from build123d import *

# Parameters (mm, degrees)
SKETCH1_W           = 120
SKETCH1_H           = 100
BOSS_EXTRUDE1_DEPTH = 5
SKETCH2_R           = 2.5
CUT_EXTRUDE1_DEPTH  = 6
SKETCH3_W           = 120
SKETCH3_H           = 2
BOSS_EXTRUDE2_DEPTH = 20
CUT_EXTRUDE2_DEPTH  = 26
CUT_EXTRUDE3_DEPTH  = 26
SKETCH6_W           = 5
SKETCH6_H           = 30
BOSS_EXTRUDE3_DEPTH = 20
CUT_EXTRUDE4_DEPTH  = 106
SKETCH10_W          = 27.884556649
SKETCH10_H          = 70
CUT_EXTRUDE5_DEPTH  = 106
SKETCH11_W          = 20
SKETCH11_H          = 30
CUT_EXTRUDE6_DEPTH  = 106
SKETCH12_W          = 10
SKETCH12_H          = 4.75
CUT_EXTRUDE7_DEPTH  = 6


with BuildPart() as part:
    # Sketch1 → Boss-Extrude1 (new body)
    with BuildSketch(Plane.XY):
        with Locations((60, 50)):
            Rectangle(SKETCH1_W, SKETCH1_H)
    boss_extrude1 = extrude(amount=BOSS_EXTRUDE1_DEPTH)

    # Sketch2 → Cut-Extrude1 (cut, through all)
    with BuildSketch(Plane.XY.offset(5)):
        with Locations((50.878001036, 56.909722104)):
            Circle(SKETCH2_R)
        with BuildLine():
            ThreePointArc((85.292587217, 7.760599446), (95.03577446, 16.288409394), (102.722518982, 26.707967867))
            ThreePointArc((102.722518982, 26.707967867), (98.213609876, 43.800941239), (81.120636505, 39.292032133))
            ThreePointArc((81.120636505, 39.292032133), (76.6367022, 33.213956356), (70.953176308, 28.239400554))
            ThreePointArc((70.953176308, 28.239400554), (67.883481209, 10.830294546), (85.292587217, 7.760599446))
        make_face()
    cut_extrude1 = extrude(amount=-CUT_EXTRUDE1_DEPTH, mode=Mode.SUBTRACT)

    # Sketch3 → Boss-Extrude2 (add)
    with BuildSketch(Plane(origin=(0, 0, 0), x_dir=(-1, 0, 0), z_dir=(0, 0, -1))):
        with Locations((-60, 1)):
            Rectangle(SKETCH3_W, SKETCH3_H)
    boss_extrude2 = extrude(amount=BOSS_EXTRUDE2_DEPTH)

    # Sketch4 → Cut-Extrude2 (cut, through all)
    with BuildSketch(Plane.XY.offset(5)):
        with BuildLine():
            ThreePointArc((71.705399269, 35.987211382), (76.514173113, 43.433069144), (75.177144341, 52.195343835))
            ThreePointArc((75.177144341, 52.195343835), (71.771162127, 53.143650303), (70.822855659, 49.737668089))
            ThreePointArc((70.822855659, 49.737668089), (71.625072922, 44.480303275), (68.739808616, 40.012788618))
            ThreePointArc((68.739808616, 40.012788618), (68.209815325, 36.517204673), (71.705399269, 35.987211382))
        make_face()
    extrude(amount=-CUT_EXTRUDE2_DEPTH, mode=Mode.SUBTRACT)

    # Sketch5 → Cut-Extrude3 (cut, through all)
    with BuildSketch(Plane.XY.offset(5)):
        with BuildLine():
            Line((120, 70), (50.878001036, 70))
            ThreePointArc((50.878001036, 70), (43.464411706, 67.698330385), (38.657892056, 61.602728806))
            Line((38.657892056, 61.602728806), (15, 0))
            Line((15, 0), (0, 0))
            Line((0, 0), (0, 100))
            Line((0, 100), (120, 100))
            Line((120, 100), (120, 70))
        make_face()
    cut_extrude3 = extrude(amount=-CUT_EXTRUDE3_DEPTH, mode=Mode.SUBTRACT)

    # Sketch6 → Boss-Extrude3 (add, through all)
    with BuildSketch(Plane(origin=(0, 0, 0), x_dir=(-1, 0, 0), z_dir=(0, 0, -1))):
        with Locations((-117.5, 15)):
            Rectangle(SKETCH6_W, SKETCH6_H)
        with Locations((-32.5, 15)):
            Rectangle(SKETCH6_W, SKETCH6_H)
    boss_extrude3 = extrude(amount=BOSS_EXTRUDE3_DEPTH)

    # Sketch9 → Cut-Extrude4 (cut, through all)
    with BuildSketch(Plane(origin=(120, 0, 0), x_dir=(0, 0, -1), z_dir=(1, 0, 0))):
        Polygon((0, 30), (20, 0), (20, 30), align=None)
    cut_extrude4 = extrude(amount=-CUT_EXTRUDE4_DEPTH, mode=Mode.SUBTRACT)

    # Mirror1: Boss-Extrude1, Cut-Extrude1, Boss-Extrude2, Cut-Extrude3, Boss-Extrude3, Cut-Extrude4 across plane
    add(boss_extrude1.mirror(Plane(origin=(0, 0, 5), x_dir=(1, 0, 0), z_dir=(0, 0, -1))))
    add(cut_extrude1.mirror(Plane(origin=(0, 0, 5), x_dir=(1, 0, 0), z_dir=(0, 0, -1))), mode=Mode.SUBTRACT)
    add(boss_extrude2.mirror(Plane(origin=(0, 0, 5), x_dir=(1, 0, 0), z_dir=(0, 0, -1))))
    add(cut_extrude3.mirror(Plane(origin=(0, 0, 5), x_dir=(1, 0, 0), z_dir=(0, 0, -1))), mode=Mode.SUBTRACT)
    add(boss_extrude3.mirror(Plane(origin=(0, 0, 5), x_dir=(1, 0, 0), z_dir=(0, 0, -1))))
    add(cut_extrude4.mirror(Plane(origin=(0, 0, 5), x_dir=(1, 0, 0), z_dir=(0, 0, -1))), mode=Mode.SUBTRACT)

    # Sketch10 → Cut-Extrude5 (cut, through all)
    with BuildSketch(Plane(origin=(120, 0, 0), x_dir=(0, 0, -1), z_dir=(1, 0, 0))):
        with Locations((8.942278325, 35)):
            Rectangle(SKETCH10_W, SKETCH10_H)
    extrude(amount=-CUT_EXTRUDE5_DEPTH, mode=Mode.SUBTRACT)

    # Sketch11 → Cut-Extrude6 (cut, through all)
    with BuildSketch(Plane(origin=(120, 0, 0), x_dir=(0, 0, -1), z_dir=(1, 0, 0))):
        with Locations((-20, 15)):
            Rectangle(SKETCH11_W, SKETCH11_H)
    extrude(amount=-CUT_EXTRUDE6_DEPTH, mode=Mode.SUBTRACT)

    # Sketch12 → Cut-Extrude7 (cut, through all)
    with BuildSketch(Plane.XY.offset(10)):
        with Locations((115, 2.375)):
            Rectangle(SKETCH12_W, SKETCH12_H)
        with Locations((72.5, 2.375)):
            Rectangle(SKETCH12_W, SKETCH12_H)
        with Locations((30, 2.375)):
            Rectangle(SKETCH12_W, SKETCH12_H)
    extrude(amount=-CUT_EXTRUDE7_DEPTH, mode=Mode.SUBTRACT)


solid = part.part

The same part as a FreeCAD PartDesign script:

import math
import FreeCAD as App
import Part
import Sketcher
from FreeCAD import Vector


def add_polygon(sketch, points):
    """Adds a closed chain of lines whose ends are joined by coincident constraints."""
    first, n = sketch.GeometryCount, len(points)
    for a, b in zip(points, points[1:] + points[:1]):
        sketch.addGeometry(Part.LineSegment(App.Vector(*a, 0), App.Vector(*b, 0)), False)
    for i in range(n):
        sketch.addConstraint(Sketcher.Constraint("Coincident", first + i, 2, first + (i + 1) % n, 1))

doc = App.newDocument("Part")
body = doc.addObject("PartDesign::Body", "Body")

# Sketch on XY plane
sketch1 = doc.addObject("Sketcher::SketchObject", "Sketch")
body.addObject(sketch1)
sketch1.AttachmentSupport = (doc.XY_Plane, [""])
sketch1.MapMode = "FlatFace"
add_polygon(sketch1, [(0, 100), (0, 0), (120, 0), (120, 100)])  # lines 0-3
sketch1.addConstraint([
    Sketcher.Constraint("Vertical", 0),
    Sketcher.Constraint("Horizontal", 1),
    Sketcher.Constraint("Vertical", 2),
    Sketcher.Constraint("Horizontal", 3),
    Sketcher.Constraint("Coincident", 0, 2, -1, 1),
    Sketcher.Constraint("DistanceX", 1, 1, 1, 2, 120.0),
    Sketcher.Constraint("DistanceY", 0, 2, 0, 1, 100.0),
])
pad1 = doc.addObject("PartDesign::Pad", "Pad")
body.addObject(pad1)
pad1.Profile = sketch1
pad1.Length = 5

# Sketch on XY plane
sketch2 = doc.addObject("Sketcher::SketchObject", "Sketch001")
body.addObject(sketch2)
sketch2.AttachmentSupport = (doc.XY_Plane, [""])
sketch2.MapMode = "FlatFace"
sketch2.AttachmentOffset = App.Placement(Vector(0, 0, 5), App.Rotation())
sketch2.addGeometry([
    Part.Circle(Vector(50.878001, 56.909722, 0), Vector(0, 0, 1), 2.5),  # 0
    Part.ArcOfCircle(Part.Circle(Vector(50.878001, 56.909722, 0), Vector(0, 0, 1), 60), math.radians(-55), math.radians(-30.222716)),  # 1
    Part.ArcOfCircle(Part.Circle(Vector(91.921578, 33, 0), Vector(0, 0, 1), 12.5), math.radians(-30.222716), math.radians(149.777284)),  # 2
    Part.ArcOfCircle(Part.Circle(Vector(50.878001, 56.909722, 0), Vector(0, 0, 1), 35), math.radians(-55), math.radians(-30.222716)),  # 3
    Part.ArcOfCircle(Part.Circle(Vector(78.122882, 18, 0), Vector(0, 0, 1), 12.5), math.radians(125), math.radians(305)),  # 4
], False)
sketch2.addConstraint([
    Sketcher.Constraint("Tangent", 1, 2, 2, 1),
    Sketcher.Constraint("Tangent", 2, 2, 3, 2),
    Sketcher.Constraint("Tangent", 3, 1, 4, 1),
    Sketcher.Constraint("Tangent", 4, 2, 1, 1),
    Sketcher.Constraint("Coincident", 1, 3, 0, 3),
    Sketcher.Constraint("Coincident", 3, 3, 0, 3),
    Sketcher.Constraint("Diameter", 0, 5.0),
    Sketcher.Constraint("Radius", 1, 60.0),
    Sketcher.Constraint("Radius", 3, 35.0),
    Sketcher.Constraint("DistanceY", -1, 1, 2, 3, 33.0),
    Sketcher.Constraint("DistanceY", -1, 1, 4, 3, 18.0),
    Sketcher.Constraint("DistanceX", -1, 1, 0, 3, 50.878001),
    Sketcher.Constraint("DistanceY", -1, 1, 3, 1, 28.239401),
])
pocket1 = doc.addObject("PartDesign::Pocket", "Pocket")
body.addObject(pocket1)
pocket1.Profile = sketch2
pocket1.Type = "ThroughAll"

# Sketch on XY plane
sketch3 = doc.addObject("Sketcher::SketchObject", "Sketch002")
body.addObject(sketch3)
sketch3.AttachmentSupport = (doc.XY_Plane, [""])
sketch3.MapMode = "FlatFace"
add_polygon(sketch3, [(120, 2), (120, 0), (0, 0), (0, 2)])  # lines 0-3
sketch3.addConstraint([
    Sketcher.Constraint("Vertical", 0),
    Sketcher.Constraint("Horizontal", 1),
    Sketcher.Constraint("Vertical", 2),
    Sketcher.Constraint("Horizontal", 3),
    Sketcher.Constraint("Coincident", 1, 2, -1, 1),
    Sketcher.Constraint("DistanceX", 1, 2, 1, 1, 120.0),
    Sketcher.Constraint("DistanceY", 0, 2, 0, 1, 2.0),
])
pad2 = doc.addObject("PartDesign::Pad", "Pad001")
body.addObject(pad2)
pad2.Profile = sketch3
pad2.Length = 20
pad2.Reversed = True

# Sketch on XY plane
sketch4 = doc.addObject("Sketcher::SketchObject", "Sketch003")
body.addObject(sketch4)
sketch4.AttachmentSupport = (doc.XY_Plane, [""])
sketch4.MapMode = "FlatFace"
sketch4.AttachmentOffset = App.Placement(Vector(0, 0, 5), App.Rotation())
sketch4.addGeometry([
    Part.ArcOfCircle(Part.Circle(Vector(64.291423, 46.051154, 0), Vector(0, 0, 1), 12.5), math.radians(-53.621406), math.radians(29.441533)),
    Part.ArcOfCircle(Part.Circle(Vector(73, 50.966506, 0), Vector(0, 0, 1), 2.5), math.radians(29.441533), math.radians(209.441533)),
    Part.ArcOfCircle(Part.Circle(Vector(64.291423, 46.051154, 0), Vector(0, 0, 1), 7.5), math.radians(-53.621406), math.radians(29.441533)),
    Part.ArcOfCircle(Part.Circle(Vector(70.222604, 38, 0), Vector(0, 0, 1), 2.5), math.radians(126.378594), math.radians(306.378594)),
], False)
sketch4.addConstraint([
    Sketcher.Constraint("Tangent", 0, 2, 1, 1),
    Sketcher.Constraint("Tangent", 1, 2, 2, 2),
    Sketcher.Constraint("Tangent", 2, 1, 3, 1),
    Sketcher.Constraint("Tangent", 3, 2, 0, 1),
    Sketcher.Constraint("Coincident", 2, 3, 0, 3),
    Sketcher.Constraint("Radius", 0, 12.5),
    Sketcher.Constraint("Radius", 1, 2.5),
    Sketcher.Constraint("DistanceX", -1, 1, 1, 3, 73.0),
    Sketcher.Constraint("DistanceY", -1, 1, 3, 3, 38.0),
    Sketcher.Constraint("DistanceX", -1, 1, 3, 2, 71.705399),
    Sketcher.Constraint("DistanceY", -1, 1, 1, 2, 49.737668),
])
pocket2 = doc.addObject("PartDesign::Pocket", "Pocket001")
body.addObject(pocket2)
pocket2.Profile = sketch4
pocket2.Type = "ThroughAll"

# Sketch on XY plane
sketch5 = doc.addObject("Sketcher::SketchObject", "Sketch004")
body.addObject(sketch5)
sketch5.AttachmentSupport = (doc.XY_Plane, [""])
sketch5.MapMode = "FlatFace"
sketch5.AttachmentOffset = App.Placement(Vector(0, 0, 5), App.Rotation())
sketch5.addGeometry([
    Part.LineSegment(Vector(50.878001, 70, 0), Vector(120, 70, 0)),  # 0
    Part.LineSegment(Vector(120, 70, 0), Vector(120, 100, 0)),  # 1
    Part.LineSegment(Vector(120, 100, 0), Vector(0, 100, 0)),  # 2
    Part.LineSegment(Vector(0, 100, 0), Vector(0, 0, 0)),  # 3
    Part.LineSegment(Vector(0, 0, 0), Vector(15, 0, 0)),  # 4
    Part.LineSegment(Vector(15, 0, 0), Vector(38.657892, 61.602729, 0)),  # 5
    Part.ArcOfCircle(Part.Circle(Vector(50.878001, 56.909722, 0), Vector(0, 0, 1), 13.090278), math.radians(90), math.radians(158.991229)),  # 6
], False)
sketch5.addConstraint([
    Sketcher.Constraint("Coincident", 0, 2, 1, 1),
    Sketcher.Constraint("Coincident", 1, 2, 2, 1),
    Sketcher.Constraint("Coincident", 2, 2, 3, 1),
    Sketcher.Constraint("Coincident", 3, 2, 4, 1),
    Sketcher.Constraint("Coincident", 4, 2, 5, 1),
    Sketcher.Constraint("Tangent", 5, 2, 6, 2),
    Sketcher.Constraint("Tangent", 6, 1, 0, 1),
    Sketcher.Constraint("Horizontal", 0),
    Sketcher.Constraint("Vertical", 1),
    Sketcher.Constraint("Horizontal", 2),
    Sketcher.Constraint("Vertical", 3),
    Sketcher.Constraint("Horizontal", 4),
    Sketcher.Constraint("Coincident", 3, 2, -1, 1),
    Sketcher.Constraint("DistanceX", 2, 2, 2, 1, 120.0),
    Sketcher.Constraint("DistanceX", 4, 1, 4, 2, 15.0),
    Sketcher.Constraint("DistanceY", 1, 1, 1, 2, 30.0),
    Sketcher.Constraint("DistanceY", 3, 2, 3, 1, 100.0),
    Sketcher.Constraint("DistanceX", 0, 1, 0, 2, 69.121999),
    Sketcher.Constraint("Radius", 6, 13.090278),
])
pocket3 = doc.addObject("PartDesign::Pocket", "Pocket002")
body.addObject(pocket3)
pocket3.Profile = sketch5
pocket3.Type = "ThroughAll"

# Sketch on XY plane
sketch6 = doc.addObject("Sketcher::SketchObject", "Sketch005")
body.addObject(sketch6)
sketch6.AttachmentSupport = (doc.XY_Plane, [""])
sketch6.MapMode = "FlatFace"
add_polygon(sketch6, [(120, 30), (120, 0), (115, 0), (115, 30)])  # lines 0-3
add_polygon(sketch6, [(35, 30), (35, 0), (30, 0), (30, 30)])  # lines 4-7
sketch6.addConstraint([
    Sketcher.Constraint("Vertical", 0),
    Sketcher.Constraint("Horizontal", 1),
    Sketcher.Constraint("Vertical", 2),
    Sketcher.Constraint("Horizontal", 3),
    Sketcher.Constraint("Vertical", 4),
    Sketcher.Constraint("Horizontal", 5),
    Sketcher.Constraint("Vertical", 6),
    Sketcher.Constraint("Horizontal", 7),
    Sketcher.Constraint("PointOnObject", 0, 2, -1),
    Sketcher.Constraint("PointOnObject", 4, 2, -1),
    Sketcher.Constraint("Horizontal", 3, 2, 6, 2),
    Sketcher.Constraint("Equal", 3, 5),
    Sketcher.Constraint("DistanceX", 1, 2, 1, 1, 5.0),
    Sketcher.Constraint("DistanceY", 0, 2, 0, 1, 30.0),
    Sketcher.Constraint("DistanceX", -1, 1, 0, 2, 120.0),
    Sketcher.Constraint("DistanceX", -1, 1, 4, 2, 35.0),
])
pad3 = doc.addObject("PartDesign::Pad", "Pad002")
body.addObject(pad3)
pad3.Profile = sketch6
pad3.Length = 20
pad3.Reversed = True

# Sketch on YZ plane
sketch7 = doc.addObject("Sketcher::SketchObject", "Sketch006")
body.addObject(sketch7)
sketch7.AttachmentSupport = (doc.YZ_Plane, [""])
sketch7.MapMode = "FlatFace"
sketch7.AttachmentOffset = App.Placement(Vector(0, 0, 120), App.Rotation())
add_polygon(sketch7, [(30, 0), (0, -20), (30, -20)])  # lines 0-2
sketch7.addConstraint([
    Sketcher.Constraint("Horizontal", 1),
    Sketcher.Constraint("Vertical", 2),
    Sketcher.Constraint("PointOnObject", 0, 2, -2),
    Sketcher.Constraint("PointOnObject", 2, 2, -1),
    Sketcher.Constraint("DistanceX", 1, 1, 1, 2, 30.0),
    Sketcher.Constraint("DistanceY", 2, 1, 2, 2, 20.0),
])
pocket4 = doc.addObject("PartDesign::Pocket", "Pocket003")
body.addObject(pocket4)
pocket4.Profile = sketch7
pocket4.Type = "ThroughAll"
doc.recompute()

datumplane = doc.addObject("PartDesign::Plane", "DatumPlane")
body.addObject(datumplane)
datumplane.AttachmentSupport = (doc.XY_Plane, [""])
datumplane.MapMode = "FlatFace"
datumplane.AttachmentOffset = App.Placement(Vector(0, 0, 5), App.Rotation())
mirrored = doc.addObject("PartDesign::Mirrored", "Mirrored")
body.addObject(mirrored)
mirrored.Originals = [pad1, pocket1, pad2, pocket3, pad3, pocket4]
mirrored.MirrorPlane = (datumplane, [""])
body.Tip = mirrored

# Sketch on YZ plane
sketch8 = doc.addObject("Sketcher::SketchObject", "Sketch007")
body.addObject(sketch8)
sketch8.AttachmentSupport = (doc.YZ_Plane, [""])
sketch8.MapMode = "FlatFace"
sketch8.AttachmentOffset = App.Placement(Vector(0, 0, 120), App.Rotation())
add_polygon(sketch8, [(70, 5), (0, 5), (0, -22.884557), (70, -22.884557)])  # lines 0-3
sketch8.addConstraint([
    Sketcher.Constraint("Horizontal", 0),
    Sketcher.Constraint("Vertical", 1),
    Sketcher.Constraint("Horizontal", 2),
    Sketcher.Constraint("Vertical", 3),
    Sketcher.Constraint("PointOnObject", 0, 2, -2),
    Sketcher.Constraint("DistanceX", 0, 2, 0, 1, 70.0),
    Sketcher.Constraint("DistanceY", -1, 1, 0, 2, 5.0),
    Sketcher.Constraint("DistanceY", 1, 2, 1, 1, 27.884557),
])
pocket5 = doc.addObject("PartDesign::Pocket", "Pocket004")
body.addObject(pocket5)
pocket5.Profile = sketch8
pocket5.Type = "ThroughAll"

# Sketch on YZ plane
sketch9 = doc.addObject("Sketcher::SketchObject", "Sketch008")
body.addObject(sketch9)
sketch9.AttachmentSupport = (doc.YZ_Plane, [""])
sketch9.MapMode = "FlatFace"
sketch9.AttachmentOffset = App.Placement(Vector(0, 0, 120), App.Rotation())
add_polygon(sketch9, [(30, 30), (0, 30), (0, 10), (30, 10)])  # lines 0-3
sketch9.addConstraint([
    Sketcher.Constraint("Horizontal", 0),
    Sketcher.Constraint("Vertical", 1),
    Sketcher.Constraint("Horizontal", 2),
    Sketcher.Constraint("Vertical", 3),
    Sketcher.Constraint("PointOnObject", 0, 2, -2),
    Sketcher.Constraint("DistanceX", 0, 2, 0, 1, 30.0),
    Sketcher.Constraint("DistanceY", 1, 2, 1, 1, 20.0),
    Sketcher.Constraint("DistanceY", -1, 1, 0, 2, 30.0),
])
pocket6 = doc.addObject("PartDesign::Pocket", "Pocket005")
body.addObject(pocket6)
pocket6.Profile = sketch9
pocket6.Type = "ThroughAll"

# Sketch on XY plane
sketch10 = doc.addObject("Sketcher::SketchObject", "Sketch009")
body.addObject(sketch10)
sketch10.AttachmentSupport = (doc.XY_Plane, [""])
sketch10.MapMode = "FlatFace"
sketch10.AttachmentOffset = App.Placement(Vector(0, 0, 10), App.Rotation())
add_polygon(sketch10, [(110, 4.75), (110, 0), (120, 0), (120, 4.75)])  # lines 0-3
add_polygon(sketch10, [(67.5, 4.75), (67.5, 0), (77.5, 0), (77.5, 4.75)])  # lines 4-7
add_polygon(sketch10, [(25, 4.75), (25, 0), (35, 0), (35, 4.75)])  # lines 8-11
sketch10.addConstraint([
    Sketcher.Constraint("Vertical", 0),
    Sketcher.Constraint("Horizontal", 1),
    Sketcher.Constraint("Vertical", 2),
    Sketcher.Constraint("Horizontal", 3),
    Sketcher.Constraint("Vertical", 4),
    Sketcher.Constraint("Horizontal", 5),
    Sketcher.Constraint("Vertical", 6),
    Sketcher.Constraint("Horizontal", 7),
    Sketcher.Constraint("Vertical", 8),
    Sketcher.Constraint("Horizontal", 9),
    Sketcher.Constraint("Vertical", 10),
    Sketcher.Constraint("Horizontal", 11),
    Sketcher.Constraint("PointOnObject", 0, 2, -1),
    Sketcher.Constraint("PointOnObject", 4, 2, -1),
    Sketcher.Constraint("PointOnObject", 8, 2, -1),
    Sketcher.Constraint("Horizontal", 3, 2, 6, 2),
    Sketcher.Constraint("Horizontal", 7, 2, 10, 2),
    Sketcher.Constraint("Equal", 3, 5),
    Sketcher.Constraint("Equal", 7, 9),
    Sketcher.Constraint("DistanceX", 1, 1, 1, 2, 10.0),
    Sketcher.Constraint("DistanceX", -1, 1, 0, 2, 110.0),
    Sketcher.Constraint("DistanceX", -1, 1, 8, 2, 25.0),
    Sketcher.Constraint("DistanceY", 0, 2, 0, 1, 4.75),
    Sketcher.Constraint("DistanceX", -1, 1, 4, 2, 67.5),
])
pocket7 = doc.addObject("PartDesign::Pocket", "Pocket006")
body.addObject(pocket7)
pocket7.Profile = sketch10
pocket7.Type = "ThroughAll"

doc.recompute()
